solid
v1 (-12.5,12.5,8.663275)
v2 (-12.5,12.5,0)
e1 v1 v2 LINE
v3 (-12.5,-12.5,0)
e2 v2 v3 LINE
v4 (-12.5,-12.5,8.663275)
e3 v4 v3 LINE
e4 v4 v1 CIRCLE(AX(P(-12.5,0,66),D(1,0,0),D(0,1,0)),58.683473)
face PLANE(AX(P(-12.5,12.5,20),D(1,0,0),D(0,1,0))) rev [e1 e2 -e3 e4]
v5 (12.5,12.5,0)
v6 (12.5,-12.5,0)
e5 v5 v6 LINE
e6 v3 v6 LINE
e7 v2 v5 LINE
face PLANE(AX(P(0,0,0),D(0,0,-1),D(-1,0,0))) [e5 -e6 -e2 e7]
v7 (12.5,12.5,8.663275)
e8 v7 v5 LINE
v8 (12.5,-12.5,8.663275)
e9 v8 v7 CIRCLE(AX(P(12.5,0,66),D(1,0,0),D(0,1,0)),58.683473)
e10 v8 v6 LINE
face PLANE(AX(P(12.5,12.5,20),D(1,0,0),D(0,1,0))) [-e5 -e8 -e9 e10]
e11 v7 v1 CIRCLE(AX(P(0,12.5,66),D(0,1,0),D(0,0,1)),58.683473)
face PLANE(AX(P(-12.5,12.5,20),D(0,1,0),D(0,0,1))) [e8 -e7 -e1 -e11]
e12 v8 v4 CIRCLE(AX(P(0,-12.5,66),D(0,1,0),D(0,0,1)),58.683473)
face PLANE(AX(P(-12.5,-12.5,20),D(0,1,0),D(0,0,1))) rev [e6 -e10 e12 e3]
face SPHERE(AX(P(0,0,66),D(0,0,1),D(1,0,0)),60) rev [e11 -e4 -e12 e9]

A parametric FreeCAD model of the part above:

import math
import FreeCAD as App
import Part
import Sketcher
from FreeCAD import Vector

doc = App.newDocument("Part")
body = doc.addObject("PartDesign::Body", "Body")

sketch1 = doc.addObject("Sketcher::SketchObject", "Sketch")
body.addObject(sketch1)
sketch1.AttachmentSupport = (doc.XY_Plane, [""])
sketch1.MapMode = "FlatFace"
sketch1.addGeometry([
    Part.LineSegment(Vector(-12.5, 12.5, 0), Vector(-12.5, -12.5, 0)),
    Part.LineSegment(Vector(-12.5, -12.5, 0), Vector(12.5, -12.5, 0)),
    Part.LineSegment(Vector(12.5, -12.5, 0), Vector(12.5, 12.5, 0)),
    Part.LineSegment(Vector(12.5, 12.5, 0), Vector(-12.5, 12.5, 0)),
], False)
sketch1.addConstraint([
    Sketcher.Constraint("Coincident", 0, 2, 1, 1),
    Sketcher.Constraint("Coincident", 1, 2, 2, 1),
    Sketcher.Constraint("Coincident", 2, 2, 3, 1),
    Sketcher.Constraint("Coincident", 3, 2, 0, 1),
    Sketcher.Constraint("Vertical", 0),
    Sketcher.Constraint("Horizontal", 1),
    Sketcher.Constraint("Vertical", 2),
    Sketcher.Constraint("Horizontal", 3),
    Sketcher.Constraint("Symmetric", 0, 2, 2, 2, -1, 1),
    Sketcher.Constraint("Equal", 3, 0),
    Sketcher.Constraint("DistanceX", 1, 1, 1, 2, 25.0),
])
pad1 = doc.addObject("PartDesign::Pad", "Pad")
body.addObject(pad1)
pad1.Profile = sketch1
pad1.Length = 20

sketch2 = doc.addObject("Sketcher::SketchObject", "Sketch001")
body.addObject(sketch2)
sketch2.AttachmentSupport = (doc.XZ_Plane, [""])
sketch2.MapMode = "FlatFace"
sketch2.addGeometry([
    Part.LineSegment(Vector(0, 52.627088, 0), Vector(58.490728, 52.627088, 0)),
    Part.ArcOfCircle(Part.Circle(Vector(0, 66, 0), Vector(0, 0, 1), 60), math.radians(-90), math.radians(-12.878355)),
    Part.LineSegment(Vector(0, 6, 0), Vector(0, 52.627088, 0)),
], False)
sketch2.addConstraint([
    Sketcher.Constraint("Coincident", 0, 2, 1, 2),
    Sketcher.Constraint("Coincident", 1, 1, 2, 1),
    Sketcher.Constraint("Coincident", 2, 2, 0, 1),
    Sketcher.Constraint("Horizontal", 0),
    Sketcher.Constraint("Vertical", 2),
    Sketcher.Constraint("PointOnObject", 1, 3, -2),
    Sketcher.Constraint("PointOnObject", 1, 1, -2),
    Sketcher.Constraint("Radius", 1, 60.0),
    Sketcher.Constraint("DistanceY", -1, 1, 1, 3, 66.0),
    Sketcher.Constraint("DistanceY", 2, 1, 2, 2, 46.627088),
])
groove = doc.addObject("PartDesign::Groove", "Groove")
body.addObject(groove)
groove.Profile = sketch2
groove.ReferenceAxis = (sketch2, ["V_Axis"])
groove.Angle = 360

doc.recompute()
